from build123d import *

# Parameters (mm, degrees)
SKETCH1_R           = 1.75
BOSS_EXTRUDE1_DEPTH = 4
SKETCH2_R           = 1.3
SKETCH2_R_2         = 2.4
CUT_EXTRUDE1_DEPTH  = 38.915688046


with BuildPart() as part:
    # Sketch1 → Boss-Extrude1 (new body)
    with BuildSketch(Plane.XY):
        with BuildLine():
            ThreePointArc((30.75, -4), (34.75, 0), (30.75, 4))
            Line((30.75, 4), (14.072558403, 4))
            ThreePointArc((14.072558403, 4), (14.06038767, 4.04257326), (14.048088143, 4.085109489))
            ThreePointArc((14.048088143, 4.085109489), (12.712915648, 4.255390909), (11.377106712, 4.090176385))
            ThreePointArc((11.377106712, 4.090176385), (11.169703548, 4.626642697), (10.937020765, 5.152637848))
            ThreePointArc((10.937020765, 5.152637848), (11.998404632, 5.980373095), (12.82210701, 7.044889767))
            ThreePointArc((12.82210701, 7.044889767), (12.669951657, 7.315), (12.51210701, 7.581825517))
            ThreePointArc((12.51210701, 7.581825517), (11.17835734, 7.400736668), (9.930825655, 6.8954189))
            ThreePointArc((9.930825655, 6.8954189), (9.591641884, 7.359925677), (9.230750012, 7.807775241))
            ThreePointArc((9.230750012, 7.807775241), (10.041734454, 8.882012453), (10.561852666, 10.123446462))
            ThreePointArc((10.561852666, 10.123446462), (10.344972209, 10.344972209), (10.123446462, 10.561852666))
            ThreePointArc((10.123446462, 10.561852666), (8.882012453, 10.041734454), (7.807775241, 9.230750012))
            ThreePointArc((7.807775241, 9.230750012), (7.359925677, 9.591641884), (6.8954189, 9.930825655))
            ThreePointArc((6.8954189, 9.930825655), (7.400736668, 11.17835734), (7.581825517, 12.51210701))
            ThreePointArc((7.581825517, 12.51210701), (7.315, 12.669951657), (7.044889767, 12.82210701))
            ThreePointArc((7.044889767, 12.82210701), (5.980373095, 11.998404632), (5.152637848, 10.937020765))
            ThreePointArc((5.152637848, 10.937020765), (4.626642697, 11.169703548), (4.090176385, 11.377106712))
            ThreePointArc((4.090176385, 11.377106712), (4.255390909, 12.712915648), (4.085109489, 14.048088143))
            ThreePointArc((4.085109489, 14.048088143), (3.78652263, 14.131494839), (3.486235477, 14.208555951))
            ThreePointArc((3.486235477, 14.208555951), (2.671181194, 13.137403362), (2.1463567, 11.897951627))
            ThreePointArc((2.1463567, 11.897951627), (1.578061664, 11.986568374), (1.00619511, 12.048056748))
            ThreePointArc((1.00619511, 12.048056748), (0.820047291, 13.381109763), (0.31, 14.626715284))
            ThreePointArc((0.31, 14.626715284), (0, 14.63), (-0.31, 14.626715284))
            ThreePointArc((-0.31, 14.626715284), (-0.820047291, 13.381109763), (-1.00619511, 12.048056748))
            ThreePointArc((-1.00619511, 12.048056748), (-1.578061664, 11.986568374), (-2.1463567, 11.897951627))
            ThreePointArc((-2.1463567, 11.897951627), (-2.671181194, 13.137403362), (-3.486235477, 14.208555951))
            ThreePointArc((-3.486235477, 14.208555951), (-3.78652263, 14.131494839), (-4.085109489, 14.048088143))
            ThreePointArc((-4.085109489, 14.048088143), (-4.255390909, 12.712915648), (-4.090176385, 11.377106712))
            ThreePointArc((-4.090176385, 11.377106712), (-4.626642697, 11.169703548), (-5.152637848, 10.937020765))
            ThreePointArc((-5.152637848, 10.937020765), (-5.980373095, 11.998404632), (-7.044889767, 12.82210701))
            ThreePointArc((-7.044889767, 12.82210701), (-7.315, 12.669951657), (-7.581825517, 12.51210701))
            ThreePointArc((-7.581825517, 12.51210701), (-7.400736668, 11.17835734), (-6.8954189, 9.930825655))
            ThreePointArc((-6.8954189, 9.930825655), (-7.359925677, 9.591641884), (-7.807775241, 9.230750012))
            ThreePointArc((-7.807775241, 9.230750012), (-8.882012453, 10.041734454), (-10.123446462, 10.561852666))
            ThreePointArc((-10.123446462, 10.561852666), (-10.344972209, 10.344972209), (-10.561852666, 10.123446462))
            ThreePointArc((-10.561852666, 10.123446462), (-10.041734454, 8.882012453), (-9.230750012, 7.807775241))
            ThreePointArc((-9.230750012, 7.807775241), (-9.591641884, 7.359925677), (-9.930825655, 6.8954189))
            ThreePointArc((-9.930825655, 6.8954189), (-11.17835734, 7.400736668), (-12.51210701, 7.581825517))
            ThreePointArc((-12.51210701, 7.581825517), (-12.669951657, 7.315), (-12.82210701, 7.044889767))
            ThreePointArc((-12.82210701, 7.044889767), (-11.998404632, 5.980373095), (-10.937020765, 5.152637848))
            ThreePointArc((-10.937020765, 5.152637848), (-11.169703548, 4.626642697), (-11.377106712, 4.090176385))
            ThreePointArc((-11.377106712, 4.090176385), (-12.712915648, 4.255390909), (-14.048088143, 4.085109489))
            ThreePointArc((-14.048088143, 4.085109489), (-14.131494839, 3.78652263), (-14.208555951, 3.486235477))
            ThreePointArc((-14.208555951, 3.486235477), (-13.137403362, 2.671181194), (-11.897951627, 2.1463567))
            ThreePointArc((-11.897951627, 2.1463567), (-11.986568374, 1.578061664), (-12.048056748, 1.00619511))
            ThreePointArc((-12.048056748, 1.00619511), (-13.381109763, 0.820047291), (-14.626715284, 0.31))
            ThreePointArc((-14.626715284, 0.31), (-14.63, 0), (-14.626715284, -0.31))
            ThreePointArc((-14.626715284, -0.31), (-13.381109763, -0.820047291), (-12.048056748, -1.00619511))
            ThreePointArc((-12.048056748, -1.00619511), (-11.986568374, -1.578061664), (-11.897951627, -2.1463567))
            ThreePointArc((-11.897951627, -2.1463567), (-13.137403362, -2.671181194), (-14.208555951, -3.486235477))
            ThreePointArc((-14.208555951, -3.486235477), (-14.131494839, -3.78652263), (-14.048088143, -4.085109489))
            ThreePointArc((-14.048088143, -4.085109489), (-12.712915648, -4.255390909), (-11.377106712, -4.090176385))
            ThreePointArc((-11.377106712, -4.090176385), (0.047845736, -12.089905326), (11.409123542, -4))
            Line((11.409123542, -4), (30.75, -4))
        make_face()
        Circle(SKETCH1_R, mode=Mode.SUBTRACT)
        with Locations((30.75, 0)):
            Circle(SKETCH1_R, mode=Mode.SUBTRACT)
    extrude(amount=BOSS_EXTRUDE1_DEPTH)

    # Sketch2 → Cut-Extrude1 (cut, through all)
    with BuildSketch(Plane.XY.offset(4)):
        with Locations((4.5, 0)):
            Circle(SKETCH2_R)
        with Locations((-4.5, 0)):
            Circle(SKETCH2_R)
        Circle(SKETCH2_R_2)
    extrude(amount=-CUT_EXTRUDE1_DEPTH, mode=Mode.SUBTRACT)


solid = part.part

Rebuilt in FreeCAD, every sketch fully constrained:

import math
import FreeCAD as App
import Part
import Sketcher
from FreeCAD import Vector

doc = App.newDocument("Part")
body = doc.addObject("PartDesign::Body", "Body")

# Sketch on XY plane
sketch1 = body.newObject("Sketcher::SketchObject", "Sketch")
sketch1.AttachmentSupport = (doc.getObject("XY_Plane"), [""])
sketch1.MapMode = "FlatFace"
sketch1.addGeometry(Part.ArcOfCircle(Part.Circle(Vector(30.75, 0, 0), Vector(0, 0, 1), 4), math.radians(-90), math.radians(90)), False)
sketch1.addGeometry(Part.LineSegment(Vector(30.75, 4, 0), Vector(14.072558, 4, 0)), False)
sketch1.addGeometry(Part.ArcOfCircle(Part.Circle(Vector(-0.000108, -0.000031, 0), Vector(0, 0, 1), 14.630112), math.radians(15.867332), math.radians(16.214149)), False)
sketch1.addGeometry(Part.ArcOfCircle(Part.Circle(Vector(12.702672, -1.144599, 0), Vector(0, 0, 1), 5.4), math.radians(75.572711), math.radians(104.209907)), False)
sketch1.addGeometry(Part.ArcOfCircle(Part.Circle(Vector(0, 0, 0), Vector(0, 0, 1), 12.09), math.radians(19.773986), math.radians(25.226014)), False)
sketch1.addGeometry(Part.ArcOfCircle(Part.Circle(Vector(8.172791, 9.791499, 0), Vector(0, 0, 1), 5.4), math.radians(-59.209907), math.radians(-30.572711)), False)
sketch1.addGeometry(Part.ArcOfCircle(Part.Circle(Vector(-0.000002, -0.000001, 0), Vector(0, 0, 1), 14.630002), math.radians(28.78585), math.radians(31.21415)), False)
sketch1.addGeometry(Part.ArcOfCircle(Part.Circle(Vector(12.566083, 2.182095, 0), Vector(0, 0, 1), 5.4), math.radians(90.572711), math.radians(119.209907)), False)
sketch1.addGeometry(Part.ArcOfCircle(Part.Circle(Vector(0, 0, 0), Vector(0, 0, 1), 12.09), math.radians(34.773986), math.radians(40.226014)), False)
sketch1.addGeometry(Part.ArcOfCircle(Part.Circle(Vector(5.360084, 11.573136, 0), Vector(0, 0, 1), 5.4), math.radians(-44.209907), math.radians(-15.572711)), False)
sketch1.addGeometry(Part.ArcOfCircle(Part.Circle(Vector(0, 0, 0), Vector(0, 0, 1), 14.63), math.radians(43.78585), math.radians(46.21415)), False)
sketch1.addGeometry(Part.ArcOfCircle(Part.Circle(Vector(11.573136, 5.360084, 0), Vector(0, 0, 1), 5.4), math.radians(105.572711), math.radians(134.209907)), False)
sketch1.addGeometry(Part.ArcOfCircle(Part.Circle(Vector(0, 0, 0), Vector(0, 0, 1), 12.09), math.radians(49.773986), math.radians(55.226014)), False)
sketch1.addGeometry(Part.ArcOfCircle(Part.Circle(Vector(2.182095, 12.566083, 0), Vector(0, 0, 1), 5.4), math.radians(-29.209907), math.radians(-0.572711)), False)
sketch1.addGeometry(Part.ArcOfCircle(Part.Circle(Vector(-0.000001, -0.000002, 0), Vector(0, 0, 1), 14.630002), math.radians(58.78585), math.radians(61.21415)), False)
sketch1.addGeometry(Part.ArcOfCircle(Part.Circle(Vector(9.791499, 8.172791, 0), Vector(0, 0, 1), 5.4), math.radians(120.572711), math.radians(149.209907)), False)
sketch1.addGeometry(Part.ArcOfCircle(Part.Circle(Vector(0, 0, 0), Vector(0, 0, 1), 12.09), math.radians(64.773986), math.radians(70.226014)), False)
sketch1.addGeometry(Part.ArcOfCircle(Part.Circle(Vector(-1.144599, 12.702672, 0), Vector(0, 0, 1), 5.4), math.radians(-14.209907), math.radians(14.427289)), False)
sketch1.addGeometry(Part.ArcOfCircle(Part.Circle(Vector(0, 0, 0), Vector(0, 0, 1), 14.63), math.radians(73.78585), math.radians(76.21415)), False)
sketch1.addGeometry(Part.ArcOfCircle(Part.Circle(Vector(7.342588, 10.428537, 0), Vector(0, 0, 1), 5.4), math.radians(135.572711), math.radians(164.209907)), False)
sketch1.addGeometry(Part.ArcOfCircle(Part.Circle(Vector(0, 0, 0), Vector(0, 0, 1), 12.09), math.radians(79.773986), math.radians(85.226014)), False)
sketch1.addGeometry(Part.ArcOfCircle(Part.Circle(Vector(-4.393291, 11.973595, 0), Vector(0, 0, 1), 5.4), math.radians(0.790093), math.radians(29.427289)), False)
sketch1.addGeometry(Part.ArcOfCircle(Part.Circle(Vector(0, 0, 0), Vector(0, 0, 1), 14.63), math.radians(88.78585), math.radians(91.21415)), False)
sketch1.addGeometry(Part.ArcOfCircle(Part.Circle(Vector(4.393291, 11.973595, 0), Vector(0, 0, 1), 5.4), math.radians(150.572711), math.radians(179.209907)), False)
sketch1.addGeometry(Part.ArcOfCircle(Part.Circle(Vector(0, 0, 0), Vector(0, 0, 1), 12.09), math.radians(94.773986), math.radians(100.226014)), False)
sketch1.addGeometry(Part.ArcOfCircle(Part.Circle(Vector(-7.342588, 10.428537, 0), Vector(0, 0, 1), 5.4), math.radians(15.790093), math.radians(44.427289)), False)
sketch1.addGeometry(Part.ArcOfCircle(Part.Circle(Vector(0, 0, 0), Vector(0, 0, 1), 14.63), math.radians(103.78585), math.radians(106.21415)), False)
sketch1.addGeometry(Part.ArcOfCircle(Part.Circle(Vector(1.144599, 12.702672, 0), Vector(0, 0, 1), 5.4), math.radians(165.572711), math.radians(194.209907)), False)
sketch1.addGeometry(Part.ArcOfCircle(Part.Circle(Vector(0, 0, 0), Vector(0, 0, 1), 12.09), math.radians(109.773986), math.radians(115.226014)), False)
sketch1.addGeometry(Part.ArcOfCircle(Part.Circle(Vector(-9.791499, 8.172791, 0), Vector(0, 0, 1), 5.4), math.radians(30.790093), math.radians(59.427289)), False)
sketch1.addGeometry(Part.ArcOfCircle(Part.Circle(Vector(0.000001, -0.000002, 0), Vector(0, 0, 1), 14.630002), math.radians(118.78585), math.radians(121.21415)), False)
sketch1.addGeometry(Part.ArcOfCircle(Part.Circle(Vector(-2.182095, 12.566083, 0), Vector(0, 0, 1), 5.4), math.radians(-179.427289), math.radians(-150.790093)), False)
sketch1.addGeometry(Part.ArcOfCircle(Part.Circle(Vector(0, 0, 0), Vector(0, 0, 1), 12.09), math.radians(124.773986), math.radians(130.226014)), False)
sketch1.addGeometry(Part.ArcOfCircle(Part.Circle(Vector(-11.573136, 5.360084, 0), Vector(0, 0, 1), 5.4), math.radians(45.790093), math.radians(74.427289)), False)
sketch1.addGeometry(Part.ArcOfCircle(Part.Circle(Vector(0, 0, 0), Vector(0, 0, 1), 14.63), math.radians(133.78585), math.radians(136.21415)), False)
sketch1.addGeometry(Part.ArcOfCircle(Part.Circle(Vector(-5.360084, 11.573136, 0), Vector(0, 0, 1), 5.4), math.radians(-164.427289), math.radians(-135.790093)), False)
sketch1.addGeometry(Part.ArcOfCircle(Part.Circle(Vector(0, 0, 0), Vector(0, 0, 1), 12.09), math.radians(139.773986), math.radians(145.226014)), False)
sketch1.addGeometry(Part.ArcOfCircle(Part.Circle(Vector(-12.566083, 2.182095, 0), Vector(0, 0, 1), 5.4), math.radians(60.790093), math.radians(89.427289)), False)
sketch1.addGeometry(Part.ArcOfCircle(Part.Circle(Vector(0.000002, -0.000001, 0), Vector(0, 0, 1), 14.630002), math.radians(148.78585), math.radians(151.21415)), False)
sketch1.addGeometry(Part.ArcOfCircle(Part.Circle(Vector(-8.172791, 9.791499, 0), Vector(0, 0, 1), 5.4), math.radians(-149.427289), math.radians(-120.790093)), False)
sketch1.addGeometry(Part.ArcOfCircle(Part.Circle(Vector(0, 0, 0), Vector(0, 0, 1), 12.09), math.radians(154.773986), math.radians(160.226014)), False)
sketch1.addGeometry(Part.ArcOfCircle(Part.Circle(Vector(-12.702672, -1.144599, 0), Vector(0, 0, 1), 5.4), math.radians(75.790093), math.radians(104.427289)), False)
sketch1.addGeometry(Part.ArcOfCircle(Part.Circle(Vector(0, 0, 0), Vector(0, 0, 1), 14.63), math.radians(163.78585), math.radians(166.21415)), False)
sketch1.addGeometry(Part.ArcOfCircle(Part.Circle(Vector(-10.428537, 7.342588, 0), Vector(0, 0, 1), 5.4), math.radians(-134.427289), math.radians(-105.790093)), False)
sketch1.addGeometry(Part.ArcOfCircle(Part.Circle(Vector(0, 0, 0), Vector(0, 0, 1), 12.09), math.radians(169.773986), math.radians(175.226014)), False)
sketch1.addGeometry(Part.ArcOfCircle(Part.Circle(Vector(-11.973595, -4.393291, 0), Vector(0, 0, 1), 5.4), math.radians(90.790093), math.radians(119.427289)), False)
sketch1.addGeometry(Part.ArcOfCircle(Part.Circle(Vector(0, 0, 0), Vector(0, 0, 1), 14.63), math.radians(178.78585), math.radians(181.21415)), False)
sketch1.addGeometry(Part.ArcOfCircle(Part.Circle(Vector(-11.973595, 4.393291, 0), Vector(0, 0, 1), 5.4), math.radians(-119.427289), math.radians(-90.790093)), False)
sketch1.addGeometry(Part.ArcOfCircle(Part.Circle(Vector(0, 0, 0), Vector(0, 0, 1), 12.09), math.radians(-175.226014), math.radians(-169.773986)), False)
sketch1.addGeometry(Part.ArcOfCircle(Part.Circle(Vector(-10.428537, -7.342588, 0), Vector(0, 0, 1), 5.4), math.radians(105.790093), math.radians(134.427289)), False)
sketch1.addGeometry(Part.ArcOfCircle(Part.Circle(Vector(0, 0, 0), Vector(0, 0, 1), 14.63), math.radians(-166.21415), math.radians(-163.78585)), False)
sketch1.addGeometry(Part.ArcOfCircle(Part.Circle(Vector(-12.702672, 1.144599, 0), Vector(0, 0, 1), 5.4), math.radians(-104.427289), math.radians(-75.790093)), False)
sketch1.addGeometry(Part.ArcOfCircle(Part.Circle(Vector(0, 0, 0), Vector(0, 0, 1), 12.09), math.radians(-160.226014), math.radians(-19.320493)), False)
sketch1.addGeometry(Part.LineSegment(Vector(11.409124, -4, 0), Vector(30.75, -4, 0)), False)
sketch1.addGeometry(Part.Circle(Vector(0, 0, 0), Vector(0, 0, 1), 1.75), False)
sketch1.addGeometry(Part.Circle(Vector(30.75, 0, 0), Vector(0, 0, 1), 1.75), False)
sketch1.addConstraint(Sketcher.Constraint("Coincident", 0, 2, 1, 1))
sketch1.addConstraint(Sketcher.Constraint("Coincident", 1, 2, 2, 1))
sketch1.addConstraint(Sketcher.Constraint("Coincident", 2, 2, 3, 1))
sketch1.addConstraint(Sketcher.Constraint("Coincident", 3, 2, 4, 1))
sketch1.addConstraint(Sketcher.Constraint("Coincident", 4, 2, 5, 1))
sketch1.addConstraint(Sketcher.Constraint("Coincident", 5, 2, 6, 1))
sketch1.addConstraint(Sketcher.Constraint("Coincident", 6, 2, 7, 1))
sketch1.addConstraint(Sketcher.Constraint("Coincident", 7, 2, 8, 1))
sketch1.addConstraint(Sketcher.Constraint("Coincident", 8, 2, 9, 1))
sketch1.addConstraint(Sketcher.Constraint("Coincident", 9, 2, 10, 1))
sketch1.addConstraint(Sketcher.Constraint("Coincident", 10, 2, 11, 1))
sketch1.addConstraint(Sketcher.Constraint("Coincident", 11, 2, 12, 1))
sketch1.addConstraint(Sketcher.Constraint("Coincident", 12, 2, 13, 1))
sketch1.addConstraint(Sketcher.Constraint("Coincident", 13, 2, 14, 1))
sketch1.addConstraint(Sketcher.Constraint("Coincident", 14, 2, 15, 1))
sketch1.addConstraint(Sketcher.Constraint("Coincident", 15, 2, 16, 1))
sketch1.addConstraint(Sketcher.Constraint("Coincident", 16, 2, 17, 1))
sketch1.addConstraint(Sketcher.Constraint("Coincident", 17, 2, 18, 1))
sketch1.addConstraint(Sketcher.Constraint("Coincident", 18, 2, 19, 1))
sketch1.addConstraint(Sketcher.Constraint("Coincident", 19, 2, 20, 1))
sketch1.addConstraint(Sketcher.Constraint("Coincident", 20, 2, 21, 1))
sketch1.addConstraint(Sketcher.Constraint("Coincident", 21, 2, 22, 1))
sketch1.addConstraint(Sketcher.Constraint("Coincident", 22, 2, 23, 1))
sketch1.addConstraint(Sketcher.Constraint("Coincident", 23, 2, 24, 1))
sketch1.addConstraint(Sketcher.Constraint("Coincident", 24, 2, 25, 1))
sketch1.addConstraint(Sketcher.Constraint("Coincident", 25, 2, 26, 1))
sketch1.addConstraint(Sketcher.Constraint("Coincident", 26, 2, 27, 1))
sketch1.addConstraint(Sketcher.Constraint("Coincident", 27, 2, 28, 1))
sketch1.addConstraint(Sketcher.Constraint("Coincident", 28, 2, 29, 1))
sketch1.addConstraint(Sketcher.Constraint("Coincident", 29, 2, 30, 1))
sketch1.addConstraint(Sketcher.Constraint("Coincident", 30, 2, 31, 1))
sketch1.addConstraint(Sketcher.Constraint("Coincident", 31, 2, 32, 1))
sketch1.addConstraint(Sketcher.Constraint("Coincident", 32, 2, 33, 1))
sketch1.addConstraint(Sketcher.Constraint("Coincident", 33, 2, 34, 1))
sketch1.addConstraint(Sketcher.Constraint("Coincident", 34, 2, 35, 1))
sketch1.addConstraint(Sketcher.Constraint("Coincident", 35, 2, 36, 1))
sketch1.addConstraint(Sketcher.Constraint("Coincident", 36, 2, 37, 1))
sketch1.addConstraint(Sketcher.Constraint("Coincident", 37, 2, 38, 1))
sketch1.addConstraint(Sketcher.Constraint("Coincident", 38, 2, 39, 1))
sketch1.addConstraint(Sketcher.Constraint("Coincident", 39, 2, 40, 1))
sketch1.addConstraint(Sketcher.Constraint("Coincident", 40, 2, 41, 1))
sketch1.addConstraint(Sketcher.Constraint("Coincident", 41, 2, 42, 1))
sketch1.addConstraint(Sketcher.Constraint("Coincident", 42, 2, 43, 1))
sketch1.addConstraint(Sketcher.Constraint("Coincident", 43, 2, 44, 1))
sketch1.addConstraint(Sketcher.Constraint("Coincident", 44, 2, 45, 1))
sketch1.addConstraint(Sketcher.Constraint("Coincident", 45, 2, 46, 1))
sketch1.addConstraint(Sketcher.Constraint("Coincident", 46, 2, 47, 1))
sketch1.addConstraint(Sketcher.Constraint("Coincident", 47, 2, 48, 1))
sketch1.addConstraint(Sketcher.Constraint("Coincident", 48, 2, 49, 1))
sketch1.addConstraint(Sketcher.Constraint("Coincident", 49, 2, 50, 1))
sketch1.addConstraint(Sketcher.Constraint("Coincident", 50, 2, 51, 1))
sketch1.addConstraint(Sketcher.Constraint("Coincident", 51, 2, 52, 1))
sketch1.addConstraint(Sketcher.Constraint("Coincident", 52, 2, 53, 1))
sketch1.addConstraint(Sketcher.Constraint("Coincident", 53, 2, 0, 1))
sketch1.addConstraint(Sketcher.Constraint("Horizontal", 1))
sketch1.addConstraint(Sketcher.Constraint("Horizontal", 53))
sketch1.addConstraint(Sketcher.Constraint("Coincident", 4, 3, -1, 1))
sketch1.addConstraint(Sketcher.Constraint("Coincident", 6, 3, -1, 1))
sketch1.addConstraint(Sketcher.Constraint("Coincident", 8, 3, -1, 1))
sketch1.addConstraint(Sketcher.Constraint("Coincident", 10, 3, -1, 1))
sketch1.addConstraint(Sketcher.Constraint("Coincident", 12, 3, -1, 1))
sketch1.addConstraint(Sketcher.Constraint("Coincident", 14, 3, -1, 1))
sketch1.addConstraint(Sketcher.Constraint("Coincident", 16, 3, -1, 1))
sketch1.addConstraint(Sketcher.Constraint("Coincident", 18, 3, -1, 1))
sketch1.addConstraint(Sketcher.Constraint("Coincident", 20, 3, -1, 1))
sketch1.addConstraint(Sketcher.Constraint("Coincident", 22, 3, -1, 1))
sketch1.addConstraint(Sketcher.Constraint("Coincident", 24, 3, -1, 1))
sketch1.addConstraint(Sketcher.Constraint("Coincident", 26, 3, -1, 1))
sketch1.addConstraint(Sketcher.Constraint("Coincident", 28, 3, -1, 1))
sketch1.addConstraint(Sketcher.Constraint("Coincident", 30, 3, -1, 1))
sketch1.addConstraint(Sketcher.Constraint("Coincident", 32, 3, -1, 1))
sketch1.addConstraint(Sketcher.Constraint("Coincident", 34, 3, -1, 1))
sketch1.addConstraint(Sketcher.Constraint("Coincident", 36, 3, -1, 1))
sketch1.addConstraint(Sketcher.Constraint("Coincident", 38, 3, -1, 1))
sketch1.addConstraint(Sketcher.Constraint("Coincident", 40, 3, -1, 1))
sketch1.addConstraint(Sketcher.Constraint("Coincident", 42, 3, -1, 1))
sketch1.addConstraint(Sketcher.Constraint("Coincident", 44, 3, -1, 1))
sketch1.addConstraint(Sketcher.Constraint("Coincident", 46, 3, -1, 1))
sketch1.addConstraint(Sketcher.Constraint("Coincident", 48, 3, -1, 1))
sketch1.addConstraint(Sketcher.Constraint("Coincident", 50, 3, -1, 1))
sketch1.addConstraint(Sketcher.Constraint("Coincident", 52, 3, -1, 1))
sketch1.addConstraint(Sketcher.Constraint("Coincident", 54, 3, -1, 1))
sketch1.addConstraint(Sketcher.Constraint("Coincident", 55, 3, 0, 3))
sketch1.addConstraint(Sketcher.Constraint("PointOnObject", 0, 3, -1))
sketch1.addConstraint(Sketcher.Constraint("Radius", 0, 4.0))
sketch1.addConstraint(Sketcher.Constraint("Diameter", 54, 3.5))
sketch1.addConstraint(Sketcher.Constraint("Diameter", 55, 3.5))
sketch1.addConstraint(Sketcher.Constraint("Radius", 3, 5.4))
sketch1.addConstraint(Sketcher.Constraint("Radius", 5, 5.4))
sketch1.addConstraint(Sketcher.Constraint("Radius", 7, 5.4))
sketch1.addConstraint(Sketcher.Constraint("Radius", 9, 5.4))
sketch1.addConstraint(Sketcher.Constraint("Radius", 11, 5.4))
sketch1.addConstraint(Sketcher.Constraint("Radius", 13, 5.4))
sketch1.addConstraint(Sketcher.Constraint("Radius", 15, 5.4))
sketch1.addConstraint(Sketcher.Constraint("Radius", 17, 5.4))
sketch1.addConstraint(Sketcher.Constraint("Radius", 19, 5.4))
sketch1.addConstraint(Sketcher.Constraint("Radius", 21, 5.4))
sketch1.addConstraint(Sketcher.Constraint("Radius", 23, 5.4))
sketch1.addConstraint(Sketcher.Constraint("Radius", 25, 5.4))
sketch1.addConstraint(Sketcher.Constraint("Radius", 27, 5.4))
sketch1.addConstraint(Sketcher.Constraint("Radius", 29, 5.4))
sketch1.addConstraint(Sketcher.Constraint("Radius", 31, 5.4))
sketch1.addConstraint(Sketcher.Constraint("Radius", 33, 5.4))
sketch1.addConstraint(Sketcher.Constraint("Radius", 35, 5.4))
sketch1.addConstraint(Sketcher.Constraint("Radius", 37, 5.4))
sketch1.addConstraint(Sketcher.Constraint("Radius", 39, 5.4))
sketch1.addConstraint(Sketcher.Constraint("Radius", 41, 5.4))
sketch1.addConstraint(Sketcher.Constraint("Radius", 43, 5.4))
sketch1.addConstraint(Sketcher.Constraint("Radius", 45, 5.4))
sketch1.addConstraint(Sketcher.Constraint("Radius", 47, 5.4))
sketch1.addConstraint(Sketcher.Constraint("Radius", 49, 5.4))
sketch1.addConstraint(Sketcher.Constraint("Radius", 51, 5.4))
sketch1.addConstraint(Sketcher.Constraint("Radius", 4, 12.09))
sketch1.addConstraint(Sketcher.Constraint("Radius", 6, 14.630002))
sketch1.addConstraint(Sketcher.Constraint("Radius", 8, 12.09))
sketch1.addConstraint(Sketcher.Constraint("Radius", 10, 14.63))
sketch1.addConstraint(Sketcher.Constraint("Radius", 12, 12.09))
sketch1.addConstraint(Sketcher.Constraint("Radius", 14, 14.630002))
sketch1.addConstraint(Sketcher.Constraint("Radius", 16, 12.09))
sketch1.addConstraint(Sketcher.Constraint("Radius", 18, 14.63))
sketch1.addConstraint(Sketcher.Constraint("Radius", 20, 12.09))
sketch1.addConstraint(Sketcher.Constraint("Radius", 22, 14.63))
sketch1.addConstraint(Sketcher.Constraint("Radius", 24, 12.09))
sketch1.addConstraint(Sketcher.Constraint("Radius", 26, 14.63))
sketch1.addConstraint(Sketcher.Constraint("Radius", 28, 12.09))
sketch1.addConstraint(Sketcher.Constraint("Radius", 30, 14.630002))
sketch1.addConstraint(Sketcher.Constraint("Radius", 32, 12.09))
sketch1.addConstraint(Sketcher.Constraint("Radius", 34, 14.63))
sketch1.addConstraint(Sketcher.Constraint("Radius", 36, 12.09))
sketch1.addConstraint(Sketcher.Constraint("Radius", 38, 14.630002))
sketch1.addConstraint(Sketcher.Constraint("Radius", 40, 12.09))
sketch1.addConstraint(Sketcher.Constraint("Radius", 42, 14.63))
sketch1.addConstraint(Sketcher.Constraint("Radius", 44, 12.09))
sketch1.addConstraint(Sketcher.Constraint("Radius", 46, 14.63))
sketch1.addConstraint(Sketcher.Constraint("Radius", 48, 12.09))
sketch1.addConstraint(Sketcher.Constraint("Radius", 50, 14.63))
sketch1.addConstraint(Sketcher.Constraint("Radius", 52, 12.09))
sketch1.addConstraint(Sketcher.Constraint("DistanceX", -1, 1, 0, 3, 30.75))
sketch1.addConstraint(Sketcher.Constraint("DistanceX", -1, 1, 0, 2, 30.75))
sketch1.addConstraint(Sketcher.Constraint("DistanceX", -1, 1, 21, 2, 0.31))
sketch1.addConstraint(Sketcher.Constraint("DistanceX", 22, 2, -1, 1, 0.31))
sketch1.addConstraint(Sketcher.Constraint("DistanceY", -1, 1, 45, 2, 0.31))
sketch1.addConstraint(Sketcher.Constraint("DistanceY", 46, 2, -1, 1, 0.31))
sketch1.addConstraint(Sketcher.Constraint("DistanceX", -1, 1, 53, 2, 30.75))
sketch1.addConstraint(Sketcher.Constraint("Radius", 2, 14.630112))
sketch1.addConstraint(Sketcher.Constraint("DistanceX", 1, 2, 1, 1, 16.677442))
sketch1.addConstraint(Sketcher.Constraint("DistanceY", 3, 3, -1, 1, 1.144599))
sketch1.addConstraint(Sketcher.Constraint("DistanceY", -1, 1, 5, 3, 9.791499))
sketch1.addConstraint(Sketcher.Constraint("DistanceX", -1, 1, 15, 3, 9.791499))
sketch1.addConstraint(Sketcher.Constraint("DistanceX", 17, 3, -1, 1, 1.144599))
sketch1.addConstraint(Sketcher.Constraint("DistanceX", -1, 1, 27, 3, 1.144599))
sketch1.addConstraint(Sketcher.Constraint("DistanceX", 29, 3, -1, 1, 9.791499))
sketch1.addConstraint(Sketcher.Constraint("DistanceY", -1, 1, 39, 3, 9.791499))
sketch1.addConstraint(Sketcher.Constraint("DistanceY", 41, 3, -1, 1, 1.144599))
sketch1.addConstraint(Sketcher.Constraint("DistanceY", -1, 1, 51, 3, 1.144599))
sketch1.addConstraint(Sketcher.Constraint("DistanceX", 2, 3, -1, 1, 0.000108))
sketch1.addConstraint(Sketcher.Constraint("DistanceX", -1, 1, 3, 3, 12.702672))
sketch1.addConstraint(Sketcher.Constraint("DistanceX", -1, 1, 5, 3, 8.172791))
sketch1.addConstraint(Sketcher.Constraint("DistanceY", -1, 1, 15, 3, 8.172791))
sketch1.addConstraint(Sketcher.Constraint("DistanceY", -1, 1, 17, 3, 12.702672))
sketch1.addConstraint(Sketcher.Constraint("DistanceX", -1, 1, 19, 3, 7.342588))
sketch1.addConstraint(Sketcher.Constraint("DistanceX", 21, 3, -1, 1, 4.393291))
sketch1.addConstraint(Sketcher.Constraint("DistanceX", -1, 1, 23, 3, 4.393291))
sketch1.addConstraint(Sketcher.Constraint("DistanceX", 25, 3, -1, 1, 7.342588))
sketch1.addConstraint(Sketcher.Constraint("DistanceY", -1, 1, 27, 3, 12.702672))
sketch1.addConstraint(Sketcher.Constraint("DistanceY", -1, 1, 29, 3, 8.172791))
sketch1.addConstraint(Sketcher.Constraint("DistanceX", 39, 3, -1, 1, 8.172791))
sketch1.addConstraint(Sketcher.Constraint("DistanceX", 41, 3, -1, 1, 12.702672))
sketch1.addConstraint(Sketcher.Constraint("DistanceY", -1, 1, 43, 3, 7.342588))
sketch1.addConstraint(Sketcher.Constraint("DistanceY", 45, 3, -1, 1, 4.393291))
sketch1.addConstraint(Sketcher.Constraint("DistanceY", -1, 1, 47, 3, 4.393291))
sketch1.addConstraint(Sketcher.Constraint("DistanceY", 49, 3, -1, 1, 7.342588))
sketch1.addConstraint(Sketcher.Constraint("DistanceX", 51, 3, -1, 1, 12.702672))
sketch1.addConstraint(Sketcher.Constraint("DistanceY", -1, 1, 7, 2, 6.895419))
sketch1.addConstraint(Sketcher.Constraint("DistanceX", -1, 1, 8, 2, 9.23075))
sketch1.addConstraint(Sketcher.Constraint("DistanceY", -1, 1, 11, 2, 9.23075))
sketch1.addConstraint(Sketcher.Constraint("DistanceX", -1, 1, 12, 2, 6.895419))
sketch1.addConstraint(Sketcher.Constraint("DistanceY", -1, 1, 19, 2, 11.897952))
sketch1.addConstraint(Sketcher.Constraint("DistanceY", -1, 1, 24, 2, 11.897952))
sketch1.addConstraint(Sketcher.Constraint("DistanceX", 31, 2, -1, 1, 6.895419))
sketch1.addConstraint(Sketcher.Constraint("DistanceY", -1, 1, 32, 2, 9.23075))
sketch1.addConstraint(Sketcher.Constraint("DistanceX", 35, 2, -1, 1, 9.23075))
sketch1.addConstraint(Sketcher.Constraint("DistanceY", -1, 1, 36, 2, 6.895419))
sketch1.addConstraint(Sketcher.Constraint("DistanceX", 43, 2, -1, 1, 11.897952))
sketch1.addConstraint(Sketcher.Constraint("DistanceX", 48, 2, -1, 1, 11.897952))
sketch1.addConstraint(Sketcher.Constraint("DistanceX", -1, 1, 7, 3, 12.566083))
sketch1.addConstraint(Sketcher.Constraint("DistanceX", -1, 1, 9, 3, 5.360084))
sketch1.addConstraint(Sketcher.Constraint("DistanceX", -1, 1, 11, 3, 11.573136))
sketch1.addConstraint(Sketcher.Constraint("DistanceX", -1, 1, 13, 3, 2.182095))
sketch1.addConstraint(Sketcher.Constraint("DistanceX", 31, 3, -1, 1, 2.182095))
sketch1.addConstraint(Sketcher.Constraint("DistanceX", 33, 3, -1, 1, 11.573136))
sketch1.addConstraint(Sketcher.Constraint("DistanceX", 35, 3, -1, 1, 5.360084))
sketch1.addConstraint(Sketcher.Constraint("DistanceX", 37, 3, -1, 1, 12.566083))
pad1 = body.newObject("PartDesign::Pad", "Pad")
pad1.Profile = sketch1
pad1.Length = 4

# Sketch on XY plane
sketch2 = body.newObject("Sketcher::SketchObject", "Sketch001")
sketch2.AttachmentSupport = (doc.getObject("XY_Plane"), [""])
sketch2.MapMode = "FlatFace"
sketch2.AttachmentOffset = App.Placement(Vector(0, 0, 4), App.Rotation())
sketch2.addGeometry(Part.Circle(Vector(4.5, 0, 0), Vector(0, 0, 1), 1.3), False)
sketch2.addGeometry(Part.Circle(Vector(-4.5, 0, 0), Vector(0, 0, 1), 1.3), False)
sketch2.addGeometry(Part.Circle(Vector(0, 0, 0), Vector(0, 0, 1), 2.4), False)
sketch2.addConstraint(Sketcher.Constraint("Coincident", 2, 3, -1, 1))
sketch2.addConstraint(Sketcher.Constraint("Equal", 0, 1))
sketch2.addConstraint(Sketcher.Constraint("Symmetric", 0, 3, 1, 3, -1, 1))
sketch2.addConstraint(Sketcher.Constraint("PointOnObject", 0, 3, -1))
sketch2.addConstraint(Sketcher.Constraint("Diameter", 0, 2.6))
sketch2.addConstraint(Sketcher.Constraint("Diameter", 2, 4.8))
sketch2.addConstraint(Sketcher.Constraint("DistanceX", 1, 3, 0, 3, 9.0))
pocket1 = body.newObject("PartDesign::Pocket", "Pocket")
pocket1.Profile = sketch2
pocket1.Type = "ThroughAll"

doc.recompute()
